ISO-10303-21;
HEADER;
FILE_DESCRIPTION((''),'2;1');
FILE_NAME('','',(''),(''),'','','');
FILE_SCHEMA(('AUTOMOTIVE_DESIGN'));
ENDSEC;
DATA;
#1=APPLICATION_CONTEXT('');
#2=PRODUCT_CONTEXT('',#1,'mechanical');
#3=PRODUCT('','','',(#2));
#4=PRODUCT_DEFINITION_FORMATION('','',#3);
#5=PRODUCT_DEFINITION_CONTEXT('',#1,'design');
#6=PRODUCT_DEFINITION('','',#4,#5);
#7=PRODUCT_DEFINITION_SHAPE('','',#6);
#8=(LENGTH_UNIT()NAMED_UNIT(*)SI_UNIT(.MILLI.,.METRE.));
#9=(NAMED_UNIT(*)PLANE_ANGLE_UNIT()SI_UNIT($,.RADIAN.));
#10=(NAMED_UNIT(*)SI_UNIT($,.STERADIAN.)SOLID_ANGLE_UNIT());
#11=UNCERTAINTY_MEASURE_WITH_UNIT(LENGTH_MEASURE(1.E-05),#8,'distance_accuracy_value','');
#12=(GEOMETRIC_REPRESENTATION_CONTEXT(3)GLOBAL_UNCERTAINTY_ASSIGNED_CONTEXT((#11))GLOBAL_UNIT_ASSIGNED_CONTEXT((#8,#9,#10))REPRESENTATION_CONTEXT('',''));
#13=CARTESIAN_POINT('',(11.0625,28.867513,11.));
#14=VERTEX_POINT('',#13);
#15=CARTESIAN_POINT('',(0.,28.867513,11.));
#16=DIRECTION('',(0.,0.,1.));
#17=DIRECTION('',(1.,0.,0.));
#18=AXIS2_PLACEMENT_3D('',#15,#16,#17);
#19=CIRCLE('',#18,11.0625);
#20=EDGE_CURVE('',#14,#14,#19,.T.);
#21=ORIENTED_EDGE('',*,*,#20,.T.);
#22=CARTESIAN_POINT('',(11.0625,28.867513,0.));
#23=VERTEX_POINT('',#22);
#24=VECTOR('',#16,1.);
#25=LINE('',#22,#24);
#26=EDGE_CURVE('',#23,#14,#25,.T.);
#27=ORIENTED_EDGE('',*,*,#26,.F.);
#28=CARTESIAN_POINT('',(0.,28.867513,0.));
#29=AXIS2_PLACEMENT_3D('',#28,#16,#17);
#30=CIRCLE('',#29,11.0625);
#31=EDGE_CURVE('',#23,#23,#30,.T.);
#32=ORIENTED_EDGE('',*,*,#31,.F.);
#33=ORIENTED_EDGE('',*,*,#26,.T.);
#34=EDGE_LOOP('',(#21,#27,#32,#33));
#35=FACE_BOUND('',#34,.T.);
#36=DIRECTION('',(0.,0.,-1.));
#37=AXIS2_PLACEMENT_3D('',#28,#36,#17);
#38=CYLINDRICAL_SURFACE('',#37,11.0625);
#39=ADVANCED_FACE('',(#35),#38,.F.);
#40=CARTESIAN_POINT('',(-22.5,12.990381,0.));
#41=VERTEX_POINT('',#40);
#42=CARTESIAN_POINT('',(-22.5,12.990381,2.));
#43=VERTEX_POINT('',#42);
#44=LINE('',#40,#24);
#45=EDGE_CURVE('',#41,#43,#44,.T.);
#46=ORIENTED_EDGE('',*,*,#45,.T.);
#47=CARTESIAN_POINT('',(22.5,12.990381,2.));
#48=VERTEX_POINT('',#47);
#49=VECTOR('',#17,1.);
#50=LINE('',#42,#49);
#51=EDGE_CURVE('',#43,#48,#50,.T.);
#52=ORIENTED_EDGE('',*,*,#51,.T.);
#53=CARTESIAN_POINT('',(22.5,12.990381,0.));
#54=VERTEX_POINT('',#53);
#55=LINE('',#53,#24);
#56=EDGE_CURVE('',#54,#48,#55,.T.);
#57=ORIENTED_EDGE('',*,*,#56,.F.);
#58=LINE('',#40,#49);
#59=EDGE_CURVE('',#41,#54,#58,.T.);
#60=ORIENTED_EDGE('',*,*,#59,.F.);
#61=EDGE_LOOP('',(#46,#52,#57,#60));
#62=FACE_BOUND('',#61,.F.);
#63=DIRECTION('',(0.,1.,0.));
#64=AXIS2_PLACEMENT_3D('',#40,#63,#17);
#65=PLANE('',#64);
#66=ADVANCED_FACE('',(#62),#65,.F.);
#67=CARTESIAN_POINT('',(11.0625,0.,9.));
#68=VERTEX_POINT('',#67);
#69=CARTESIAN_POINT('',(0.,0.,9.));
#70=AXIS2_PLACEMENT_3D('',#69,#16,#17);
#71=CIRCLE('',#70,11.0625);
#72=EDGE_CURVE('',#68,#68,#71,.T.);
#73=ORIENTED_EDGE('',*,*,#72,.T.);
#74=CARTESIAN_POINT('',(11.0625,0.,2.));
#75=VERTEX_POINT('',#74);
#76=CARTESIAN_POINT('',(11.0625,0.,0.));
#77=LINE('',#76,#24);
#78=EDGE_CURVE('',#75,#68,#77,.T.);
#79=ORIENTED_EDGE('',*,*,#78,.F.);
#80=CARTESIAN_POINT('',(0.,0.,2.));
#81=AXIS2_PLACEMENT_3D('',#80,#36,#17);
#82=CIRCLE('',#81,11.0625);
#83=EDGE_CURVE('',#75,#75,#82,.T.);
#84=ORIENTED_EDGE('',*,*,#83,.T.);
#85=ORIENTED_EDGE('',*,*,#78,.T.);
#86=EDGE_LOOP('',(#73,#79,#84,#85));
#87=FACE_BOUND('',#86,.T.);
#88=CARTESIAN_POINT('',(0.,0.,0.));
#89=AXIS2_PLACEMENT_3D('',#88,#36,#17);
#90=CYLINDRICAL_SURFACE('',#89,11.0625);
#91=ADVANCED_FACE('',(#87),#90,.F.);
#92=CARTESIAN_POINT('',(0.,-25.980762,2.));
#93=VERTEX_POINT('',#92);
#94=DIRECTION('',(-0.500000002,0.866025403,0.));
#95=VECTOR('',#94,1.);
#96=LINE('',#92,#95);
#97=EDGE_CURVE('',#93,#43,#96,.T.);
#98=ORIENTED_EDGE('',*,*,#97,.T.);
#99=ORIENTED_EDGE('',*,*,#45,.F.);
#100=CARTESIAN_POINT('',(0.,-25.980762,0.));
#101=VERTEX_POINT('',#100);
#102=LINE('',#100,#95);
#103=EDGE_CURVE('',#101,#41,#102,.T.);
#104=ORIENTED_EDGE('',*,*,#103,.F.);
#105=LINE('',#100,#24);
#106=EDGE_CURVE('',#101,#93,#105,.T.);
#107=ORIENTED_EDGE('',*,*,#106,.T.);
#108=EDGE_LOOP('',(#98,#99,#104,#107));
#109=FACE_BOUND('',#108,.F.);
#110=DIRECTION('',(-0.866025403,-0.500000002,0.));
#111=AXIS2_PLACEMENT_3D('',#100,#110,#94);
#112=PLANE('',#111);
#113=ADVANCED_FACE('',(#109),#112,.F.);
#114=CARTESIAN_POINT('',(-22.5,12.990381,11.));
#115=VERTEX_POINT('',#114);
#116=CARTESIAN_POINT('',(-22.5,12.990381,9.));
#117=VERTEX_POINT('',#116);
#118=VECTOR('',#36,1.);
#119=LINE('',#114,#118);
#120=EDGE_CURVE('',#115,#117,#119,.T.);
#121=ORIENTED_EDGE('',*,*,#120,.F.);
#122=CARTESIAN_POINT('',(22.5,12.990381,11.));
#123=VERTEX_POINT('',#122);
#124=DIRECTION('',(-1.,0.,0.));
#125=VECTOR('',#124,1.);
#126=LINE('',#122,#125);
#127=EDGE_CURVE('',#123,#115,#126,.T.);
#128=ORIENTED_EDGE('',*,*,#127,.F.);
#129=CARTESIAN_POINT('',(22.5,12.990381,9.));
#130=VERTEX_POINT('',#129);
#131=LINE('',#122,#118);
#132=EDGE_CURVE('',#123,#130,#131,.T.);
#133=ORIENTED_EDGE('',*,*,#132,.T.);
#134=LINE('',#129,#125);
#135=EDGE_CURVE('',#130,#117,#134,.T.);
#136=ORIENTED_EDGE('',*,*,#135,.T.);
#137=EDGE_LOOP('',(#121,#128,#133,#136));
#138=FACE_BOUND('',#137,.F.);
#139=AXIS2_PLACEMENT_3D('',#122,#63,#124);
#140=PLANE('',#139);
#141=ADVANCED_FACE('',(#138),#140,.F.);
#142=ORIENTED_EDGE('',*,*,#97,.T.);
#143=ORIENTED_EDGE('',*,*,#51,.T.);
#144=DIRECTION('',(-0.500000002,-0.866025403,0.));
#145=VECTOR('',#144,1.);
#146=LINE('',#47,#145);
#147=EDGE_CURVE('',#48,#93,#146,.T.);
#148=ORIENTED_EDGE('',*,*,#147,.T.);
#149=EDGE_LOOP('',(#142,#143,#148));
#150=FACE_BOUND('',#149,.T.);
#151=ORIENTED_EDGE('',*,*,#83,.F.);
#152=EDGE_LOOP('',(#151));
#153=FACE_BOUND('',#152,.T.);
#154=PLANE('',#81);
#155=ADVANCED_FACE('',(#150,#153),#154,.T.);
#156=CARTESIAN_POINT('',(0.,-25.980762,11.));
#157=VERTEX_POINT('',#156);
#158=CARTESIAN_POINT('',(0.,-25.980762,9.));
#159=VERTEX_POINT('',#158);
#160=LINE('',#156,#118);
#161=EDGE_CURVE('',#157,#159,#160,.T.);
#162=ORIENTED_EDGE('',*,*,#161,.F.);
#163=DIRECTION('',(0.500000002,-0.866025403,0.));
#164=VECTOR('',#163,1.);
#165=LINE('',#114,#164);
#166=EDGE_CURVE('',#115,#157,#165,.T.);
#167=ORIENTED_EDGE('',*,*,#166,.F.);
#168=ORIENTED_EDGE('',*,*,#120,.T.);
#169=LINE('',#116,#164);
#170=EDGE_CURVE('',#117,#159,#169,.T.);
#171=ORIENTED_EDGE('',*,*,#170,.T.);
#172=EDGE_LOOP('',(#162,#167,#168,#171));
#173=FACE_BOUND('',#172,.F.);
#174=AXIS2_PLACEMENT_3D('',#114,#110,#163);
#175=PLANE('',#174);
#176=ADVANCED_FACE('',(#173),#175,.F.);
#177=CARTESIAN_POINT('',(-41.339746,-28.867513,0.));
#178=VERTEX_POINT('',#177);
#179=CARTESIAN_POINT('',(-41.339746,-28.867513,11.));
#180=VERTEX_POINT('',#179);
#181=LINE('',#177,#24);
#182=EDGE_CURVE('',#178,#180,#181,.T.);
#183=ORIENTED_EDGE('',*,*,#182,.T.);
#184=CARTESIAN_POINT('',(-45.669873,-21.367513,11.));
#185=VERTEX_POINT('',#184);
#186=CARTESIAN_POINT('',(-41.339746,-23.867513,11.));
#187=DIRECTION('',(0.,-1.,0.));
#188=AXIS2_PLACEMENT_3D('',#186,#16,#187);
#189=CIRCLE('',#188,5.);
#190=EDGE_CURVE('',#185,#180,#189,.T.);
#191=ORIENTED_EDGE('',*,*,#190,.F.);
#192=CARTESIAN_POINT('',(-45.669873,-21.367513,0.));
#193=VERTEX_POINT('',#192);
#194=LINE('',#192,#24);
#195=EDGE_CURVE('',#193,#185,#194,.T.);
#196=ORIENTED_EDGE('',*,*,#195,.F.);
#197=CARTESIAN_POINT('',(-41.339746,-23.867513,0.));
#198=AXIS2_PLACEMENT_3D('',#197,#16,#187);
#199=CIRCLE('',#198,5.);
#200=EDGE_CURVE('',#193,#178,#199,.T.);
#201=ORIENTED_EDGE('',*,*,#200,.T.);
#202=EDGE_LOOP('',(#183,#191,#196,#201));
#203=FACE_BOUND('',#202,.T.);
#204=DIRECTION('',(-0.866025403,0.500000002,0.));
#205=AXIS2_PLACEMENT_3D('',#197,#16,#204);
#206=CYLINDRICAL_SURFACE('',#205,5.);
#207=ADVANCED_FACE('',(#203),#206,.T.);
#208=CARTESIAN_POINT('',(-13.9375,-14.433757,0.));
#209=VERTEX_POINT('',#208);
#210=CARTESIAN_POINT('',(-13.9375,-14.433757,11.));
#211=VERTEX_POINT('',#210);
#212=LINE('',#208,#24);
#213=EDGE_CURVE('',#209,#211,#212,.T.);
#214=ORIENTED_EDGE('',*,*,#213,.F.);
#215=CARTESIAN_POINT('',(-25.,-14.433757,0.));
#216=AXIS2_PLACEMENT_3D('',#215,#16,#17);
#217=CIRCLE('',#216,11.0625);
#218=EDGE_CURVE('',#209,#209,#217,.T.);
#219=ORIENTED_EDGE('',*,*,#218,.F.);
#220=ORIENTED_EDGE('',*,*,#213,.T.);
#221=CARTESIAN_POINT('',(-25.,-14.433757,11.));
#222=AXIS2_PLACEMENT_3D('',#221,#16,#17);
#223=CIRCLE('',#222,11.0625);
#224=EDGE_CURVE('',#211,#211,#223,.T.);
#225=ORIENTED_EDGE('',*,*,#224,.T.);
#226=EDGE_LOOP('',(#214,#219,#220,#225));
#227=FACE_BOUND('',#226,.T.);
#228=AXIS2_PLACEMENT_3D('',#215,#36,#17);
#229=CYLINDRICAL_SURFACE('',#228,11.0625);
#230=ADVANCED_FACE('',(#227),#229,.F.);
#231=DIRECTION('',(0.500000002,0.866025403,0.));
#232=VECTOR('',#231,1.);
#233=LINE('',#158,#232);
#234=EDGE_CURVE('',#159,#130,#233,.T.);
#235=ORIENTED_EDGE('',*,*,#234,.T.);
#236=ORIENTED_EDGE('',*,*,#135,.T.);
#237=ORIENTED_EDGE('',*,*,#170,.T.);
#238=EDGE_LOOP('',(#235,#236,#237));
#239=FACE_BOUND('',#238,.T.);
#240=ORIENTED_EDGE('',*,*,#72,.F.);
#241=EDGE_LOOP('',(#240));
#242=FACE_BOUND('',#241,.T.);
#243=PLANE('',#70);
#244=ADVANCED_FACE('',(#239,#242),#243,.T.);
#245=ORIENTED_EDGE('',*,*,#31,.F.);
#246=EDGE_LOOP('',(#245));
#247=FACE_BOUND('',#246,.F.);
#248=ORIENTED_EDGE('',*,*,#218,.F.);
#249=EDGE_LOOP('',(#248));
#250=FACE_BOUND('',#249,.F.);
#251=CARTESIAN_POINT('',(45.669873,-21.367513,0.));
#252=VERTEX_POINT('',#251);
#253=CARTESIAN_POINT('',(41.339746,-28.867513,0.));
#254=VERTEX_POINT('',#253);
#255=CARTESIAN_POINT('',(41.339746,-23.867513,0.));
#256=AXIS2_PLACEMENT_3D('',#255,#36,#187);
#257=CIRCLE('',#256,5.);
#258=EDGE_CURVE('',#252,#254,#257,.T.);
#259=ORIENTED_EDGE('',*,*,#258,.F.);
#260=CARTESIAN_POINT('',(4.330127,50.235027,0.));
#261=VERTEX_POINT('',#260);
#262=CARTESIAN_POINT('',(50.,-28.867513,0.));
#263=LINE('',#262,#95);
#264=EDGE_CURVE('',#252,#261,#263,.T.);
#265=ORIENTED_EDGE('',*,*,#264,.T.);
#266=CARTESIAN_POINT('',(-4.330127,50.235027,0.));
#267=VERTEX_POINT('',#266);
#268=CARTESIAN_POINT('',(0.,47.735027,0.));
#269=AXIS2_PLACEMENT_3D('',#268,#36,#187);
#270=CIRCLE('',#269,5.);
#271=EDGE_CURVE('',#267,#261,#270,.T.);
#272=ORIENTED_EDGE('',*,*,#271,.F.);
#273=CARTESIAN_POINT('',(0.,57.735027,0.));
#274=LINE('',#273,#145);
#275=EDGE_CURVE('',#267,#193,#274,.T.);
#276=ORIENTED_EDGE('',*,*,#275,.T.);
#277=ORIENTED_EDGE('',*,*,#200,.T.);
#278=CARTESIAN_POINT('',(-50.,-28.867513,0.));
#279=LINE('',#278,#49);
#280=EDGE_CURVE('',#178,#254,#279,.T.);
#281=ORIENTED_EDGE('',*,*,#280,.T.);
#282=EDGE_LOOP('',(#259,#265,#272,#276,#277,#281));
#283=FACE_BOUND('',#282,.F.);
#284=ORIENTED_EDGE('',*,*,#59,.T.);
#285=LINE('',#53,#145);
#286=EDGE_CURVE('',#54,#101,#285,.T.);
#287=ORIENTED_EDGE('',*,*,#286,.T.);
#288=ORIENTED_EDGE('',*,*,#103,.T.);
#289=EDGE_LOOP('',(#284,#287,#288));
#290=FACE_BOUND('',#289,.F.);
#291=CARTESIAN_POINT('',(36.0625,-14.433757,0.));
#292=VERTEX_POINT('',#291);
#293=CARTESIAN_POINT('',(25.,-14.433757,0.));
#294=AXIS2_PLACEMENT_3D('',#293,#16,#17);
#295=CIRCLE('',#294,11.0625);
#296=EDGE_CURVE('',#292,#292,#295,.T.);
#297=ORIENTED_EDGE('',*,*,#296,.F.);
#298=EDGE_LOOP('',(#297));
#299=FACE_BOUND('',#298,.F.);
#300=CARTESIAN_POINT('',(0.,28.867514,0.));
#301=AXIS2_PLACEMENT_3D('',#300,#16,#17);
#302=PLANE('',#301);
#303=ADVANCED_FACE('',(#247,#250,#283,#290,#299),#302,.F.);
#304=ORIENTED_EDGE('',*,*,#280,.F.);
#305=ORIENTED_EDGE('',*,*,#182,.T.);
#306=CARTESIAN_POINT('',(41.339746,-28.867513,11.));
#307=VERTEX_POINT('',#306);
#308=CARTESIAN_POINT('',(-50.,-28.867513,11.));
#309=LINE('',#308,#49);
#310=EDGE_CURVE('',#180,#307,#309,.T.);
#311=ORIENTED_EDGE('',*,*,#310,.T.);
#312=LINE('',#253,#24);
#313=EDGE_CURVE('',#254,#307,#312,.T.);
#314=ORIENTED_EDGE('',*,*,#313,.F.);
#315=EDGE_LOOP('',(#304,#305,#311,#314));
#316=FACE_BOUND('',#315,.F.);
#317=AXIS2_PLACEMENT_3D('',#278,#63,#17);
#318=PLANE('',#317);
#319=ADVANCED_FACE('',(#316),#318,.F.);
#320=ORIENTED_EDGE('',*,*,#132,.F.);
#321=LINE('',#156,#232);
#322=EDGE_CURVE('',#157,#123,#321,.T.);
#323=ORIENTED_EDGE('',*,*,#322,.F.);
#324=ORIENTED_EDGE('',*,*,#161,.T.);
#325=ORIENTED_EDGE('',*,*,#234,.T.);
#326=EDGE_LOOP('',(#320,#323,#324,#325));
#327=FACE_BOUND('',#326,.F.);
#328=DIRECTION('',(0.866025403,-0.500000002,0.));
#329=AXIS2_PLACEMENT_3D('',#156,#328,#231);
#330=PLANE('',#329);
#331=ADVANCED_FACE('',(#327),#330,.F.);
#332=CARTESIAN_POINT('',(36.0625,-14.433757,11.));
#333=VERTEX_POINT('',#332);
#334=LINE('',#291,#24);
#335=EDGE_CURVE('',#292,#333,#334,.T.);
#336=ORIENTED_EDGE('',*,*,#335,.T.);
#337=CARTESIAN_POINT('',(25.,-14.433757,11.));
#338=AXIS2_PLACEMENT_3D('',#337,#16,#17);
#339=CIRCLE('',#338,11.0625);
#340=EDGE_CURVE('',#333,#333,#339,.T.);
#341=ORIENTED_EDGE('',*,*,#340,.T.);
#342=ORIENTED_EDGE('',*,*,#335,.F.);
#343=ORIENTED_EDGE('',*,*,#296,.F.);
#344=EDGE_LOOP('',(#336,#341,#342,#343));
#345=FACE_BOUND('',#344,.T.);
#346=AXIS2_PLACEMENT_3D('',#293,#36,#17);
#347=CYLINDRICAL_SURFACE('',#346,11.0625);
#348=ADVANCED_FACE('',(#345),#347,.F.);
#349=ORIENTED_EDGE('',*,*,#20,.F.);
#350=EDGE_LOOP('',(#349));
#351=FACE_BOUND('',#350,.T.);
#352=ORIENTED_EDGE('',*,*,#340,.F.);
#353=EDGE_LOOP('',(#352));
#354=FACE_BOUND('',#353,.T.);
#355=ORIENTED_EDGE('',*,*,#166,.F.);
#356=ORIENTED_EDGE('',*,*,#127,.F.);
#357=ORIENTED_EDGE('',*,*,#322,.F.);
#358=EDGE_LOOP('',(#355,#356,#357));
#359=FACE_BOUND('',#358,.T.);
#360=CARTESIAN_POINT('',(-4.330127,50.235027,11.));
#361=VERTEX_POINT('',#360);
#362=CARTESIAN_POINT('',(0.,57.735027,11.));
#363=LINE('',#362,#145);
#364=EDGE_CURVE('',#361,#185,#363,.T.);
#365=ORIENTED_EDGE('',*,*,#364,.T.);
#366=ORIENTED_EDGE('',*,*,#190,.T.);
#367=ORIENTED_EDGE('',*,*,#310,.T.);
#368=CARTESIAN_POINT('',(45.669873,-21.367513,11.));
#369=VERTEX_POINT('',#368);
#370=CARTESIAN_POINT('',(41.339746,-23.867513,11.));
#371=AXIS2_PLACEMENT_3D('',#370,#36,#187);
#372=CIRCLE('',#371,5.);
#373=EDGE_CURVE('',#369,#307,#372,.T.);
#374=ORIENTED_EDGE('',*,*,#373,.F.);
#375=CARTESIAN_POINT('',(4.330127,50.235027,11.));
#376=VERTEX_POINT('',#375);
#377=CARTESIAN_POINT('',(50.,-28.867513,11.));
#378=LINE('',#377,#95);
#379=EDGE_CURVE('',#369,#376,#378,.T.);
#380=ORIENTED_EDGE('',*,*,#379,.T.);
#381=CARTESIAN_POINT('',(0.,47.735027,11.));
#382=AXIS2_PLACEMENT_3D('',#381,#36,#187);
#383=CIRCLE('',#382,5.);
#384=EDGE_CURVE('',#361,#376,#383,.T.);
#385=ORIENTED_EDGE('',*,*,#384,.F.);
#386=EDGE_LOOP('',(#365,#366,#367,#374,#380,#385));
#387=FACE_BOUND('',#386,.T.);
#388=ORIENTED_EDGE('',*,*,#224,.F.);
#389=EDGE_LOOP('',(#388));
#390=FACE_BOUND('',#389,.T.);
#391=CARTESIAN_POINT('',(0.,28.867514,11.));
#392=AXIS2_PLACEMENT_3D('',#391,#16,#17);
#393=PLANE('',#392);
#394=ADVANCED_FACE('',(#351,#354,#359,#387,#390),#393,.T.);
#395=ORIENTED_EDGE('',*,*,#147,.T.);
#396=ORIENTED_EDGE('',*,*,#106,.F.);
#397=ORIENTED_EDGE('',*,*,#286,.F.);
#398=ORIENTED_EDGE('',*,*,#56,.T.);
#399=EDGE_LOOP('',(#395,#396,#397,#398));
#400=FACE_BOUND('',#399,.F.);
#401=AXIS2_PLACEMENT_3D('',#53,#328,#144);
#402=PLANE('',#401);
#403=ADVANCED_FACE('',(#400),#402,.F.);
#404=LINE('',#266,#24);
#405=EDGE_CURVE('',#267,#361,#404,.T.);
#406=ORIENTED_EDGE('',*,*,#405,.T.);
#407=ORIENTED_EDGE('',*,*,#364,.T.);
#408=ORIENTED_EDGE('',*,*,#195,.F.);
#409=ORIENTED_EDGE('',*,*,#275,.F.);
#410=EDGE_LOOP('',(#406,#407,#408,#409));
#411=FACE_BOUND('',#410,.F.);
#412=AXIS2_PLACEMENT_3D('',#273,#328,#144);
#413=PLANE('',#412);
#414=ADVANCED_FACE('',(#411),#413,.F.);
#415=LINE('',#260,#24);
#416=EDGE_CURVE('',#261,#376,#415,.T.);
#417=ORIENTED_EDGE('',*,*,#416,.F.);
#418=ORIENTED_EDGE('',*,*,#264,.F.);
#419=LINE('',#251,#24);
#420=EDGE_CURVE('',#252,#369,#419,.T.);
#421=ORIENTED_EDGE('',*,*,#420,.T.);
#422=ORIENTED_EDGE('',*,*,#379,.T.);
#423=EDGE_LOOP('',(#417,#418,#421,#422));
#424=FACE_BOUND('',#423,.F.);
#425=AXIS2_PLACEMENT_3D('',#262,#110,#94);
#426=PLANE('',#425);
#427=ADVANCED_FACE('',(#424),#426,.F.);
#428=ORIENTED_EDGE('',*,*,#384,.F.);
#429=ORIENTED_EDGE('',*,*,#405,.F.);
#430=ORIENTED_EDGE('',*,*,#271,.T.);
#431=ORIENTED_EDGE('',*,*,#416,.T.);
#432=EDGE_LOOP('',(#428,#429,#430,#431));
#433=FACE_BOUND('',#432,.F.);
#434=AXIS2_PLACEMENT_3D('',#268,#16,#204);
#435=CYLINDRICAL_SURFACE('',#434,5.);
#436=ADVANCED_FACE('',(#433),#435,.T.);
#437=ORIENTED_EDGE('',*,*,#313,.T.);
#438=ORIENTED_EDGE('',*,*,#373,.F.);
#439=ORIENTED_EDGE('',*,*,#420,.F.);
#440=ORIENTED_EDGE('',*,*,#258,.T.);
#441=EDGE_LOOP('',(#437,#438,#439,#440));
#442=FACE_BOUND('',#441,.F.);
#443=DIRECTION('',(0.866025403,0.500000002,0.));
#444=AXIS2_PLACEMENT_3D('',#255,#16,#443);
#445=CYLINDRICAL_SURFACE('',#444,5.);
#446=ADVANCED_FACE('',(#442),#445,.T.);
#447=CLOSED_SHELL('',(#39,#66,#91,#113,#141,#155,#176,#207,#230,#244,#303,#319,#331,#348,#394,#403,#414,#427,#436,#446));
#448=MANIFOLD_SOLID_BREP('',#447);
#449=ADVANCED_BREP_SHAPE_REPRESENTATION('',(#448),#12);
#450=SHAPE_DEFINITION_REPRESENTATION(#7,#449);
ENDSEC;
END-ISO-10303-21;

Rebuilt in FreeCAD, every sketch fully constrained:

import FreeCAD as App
import Part
import Sketcher
from FreeCAD import Vector
Q = App.Units.Quantity


def edges_at(feature, points):
    """Names of the edges that pass closest to the given points."""
    edges = feature.Shape.Edges
    near = lambda p: min(range(len(edges)), key=lambda i: edges[i].distToShape(Part.Vertex(*p))[0])
    return sorted({f"Edge{near(p) + 1}" for p in points})

doc = App.newDocument("Part")
body = doc.addObject("PartDesign::Body", "Body")

# Sketch on XY plane
sketch1 = doc.addObject("Sketcher::SketchObject", "Sketch")
body.addObject(sketch1)
sketch1.AttachmentSupport = (doc.XY_Plane, [""])
sketch1.MapMode = "FlatFace"
sketch1.addGeometry(Part.LineSegment(Vector(0, 58, 0), Vector(-50, -29, 0)), False)
sketch1.addGeometry(Part.LineSegment(Vector(-50, -29, 0), Vector(50, -29, 0)), False)
sketch1.addGeometry(Part.LineSegment(Vector(50, -29, 0), Vector(0, 58, 0)), False)
sketch1.addGeometry(Part.Circle(Vector(-25, -14, 0), Vector(0, 0, 1), 11), False)
sketch1.addGeometry(Part.Circle(Vector(25, -14, 0), Vector(0, 0, 1), 11), False)
sketch1.addGeometry(Part.Circle(Vector(0, 0, 0), Vector(0, 0, 1), 11), False)
sketch1.addGeometry(Part.Circle(Vector(0, 29, 0), Vector(0, 0, 1), 11), False)
sketch1.addConstraint(Sketcher.Constraint("Coincident", 0, 2, 1, 1))
sketch1.addConstraint(Sketcher.Constraint("Coincident", 1, 2, 2, 1))
sketch1.addConstraint(Sketcher.Constraint("Coincident", 2, 2, 0, 1))
sketch1.addConstraint(Sketcher.Constraint("Horizontal", 1))
sketch1.addConstraint(Sketcher.Constraint("Coincident", 5, 3, -1, 1))
sketch1.addConstraint(Sketcher.Constraint("Equal", 3, 4))
sketch1.addConstraint(Sketcher.Constraint("Equal", 4, 5))
sketch1.addConstraint(Sketcher.Constraint("Equal", 5, 6))
sketch1.addConstraint(Sketcher.Constraint("Symmetric", 3, 3, 4, 3, -2))
sketch1.addConstraint(Sketcher.Constraint("PointOnObject", 6, 3, -2))
sketch1.addConstraint(Sketcher.Constraint("PointOnObject", 2, 2, -2))
sketch1.addConstraint(Sketcher.Constraint("Equal", 0, 2))
sketch1.addConstraint(Sketcher.Constraint("DistanceX", 1, 1, 1, 2, Q("100 mm")))
sketch1.addConstraint(Sketcher.Constraint("Angle", 0, Q("-120 deg")))
sketch1.addConstraint(Sketcher.Constraint("Diameter", 3, Q("22.125 mm")))
sketch1.addConstraint(Sketcher.Constraint("DistanceX", 3, 3, -1, 1, Q("25 mm")))
sketch1.addConstraint(Sketcher.Constraint("DistanceY", 3, 3, 6, 3, Q("43.30127 mm")))
sketch1.addConstraint(Sketcher.Constraint("DistanceY", 3, 3, -1, 1, Q("14.433757 mm")))
sketch1.addConstraint(Sketcher.Constraint("DistanceY", 0, 2, -1, 1, Q("28.867513 mm")))
pad1 = doc.addObject("PartDesign::Pad", "Pad")
body.addObject(pad1)
pad1.Profile = sketch1
pad1.Length = 11
doc.recompute()

fillet = doc.addObject("PartDesign::Fillet", "Fillet")
body.addObject(fillet)
fillet.Base = (pad1, edges_at(pad1, [(50, -28.868, 5.5), (0, 57.735, 5.5), (-50, -28.868, 5.5)]))
fillet.Radius = 5

# Sketch on XY plane
sketch2 = doc.addObject("Sketcher::SketchObject", "Sketch001")
body.addObject(sketch2)
sketch2.AttachmentSupport = (doc.XY_Plane, [""])
sketch2.MapMode = "FlatFace"
sketch2.AttachmentOffset = App.Placement(Vector(0, 0, 11), App.Rotation())
sketch2.addGeometry(Part.LineSegment(Vector(-22, 13, 0), Vector(0, -26, 0)), False)
sketch2.addGeometry(Part.LineSegment(Vector(0, -26, 0), Vector(22, 13, 0)), False)
sketch2.addGeometry(Part.LineSegment(Vector(22, 13, 0), Vector(-22, 13, 0)), False)
sketch2.addGeometry(Part.Circle(Vector(0, 0, 0), Vector(0, 0, 1), 11), False)
sketch2.addConstraint(Sketcher.Constraint("Coincident", 0, 2, 1, 1))
sketch2.addConstraint(Sketcher.Constraint("Coincident", 1, 2, 2, 1))
sketch2.addConstraint(Sketcher.Constraint("Coincident", 2, 2, 0, 1))
sketch2.addConstraint(Sketcher.Constraint("Horizontal", 2))
sketch2.addConstraint(Sketcher.Constraint("Coincident", 3, 3, -1, 1))
sketch2.addConstraint(Sketcher.Constraint("PointOnObject", 0, 2, -2))
sketch2.addConstraint(Sketcher.Constraint("Equal", 0, 1))
sketch2.addConstraint(Sketcher.Constraint("DistanceX", 2, 2, 2, 1, Q("45 mm")))
sketch2.addConstraint(Sketcher.Constraint("Angle", 0, Q("-60 deg")))
sketch2.addConstraint(Sketcher.Constraint("Diameter", 3, Q("22.125 mm")))
sketch2.addConstraint(Sketcher.Constraint("DistanceY", 0, 2, -1, 1, Q("25.980762 mm")))
pocket1 = doc.addObject("PartDesign::Pocket", "Pocket")
body.addObject(pocket1)
pocket1.Profile = sketch2
pocket1.Length = 2

# Sketch on XY plane
sketch3 = doc.addObject("Sketcher::SketchObject", "Sketch002")
body.addObject(sketch3)
sketch3.AttachmentSupport = (doc.XY_Plane, [""])
sketch3.MapMode = "FlatFace"
sketch3.addGeometry(Part.LineSegment(Vector(-22, 13, 0), Vector(22, 13, 0)), False)
sketch3.addGeometry(Part.LineSegment(Vector(22, 13, 0), Vector(0, -26, 0)), False)
sketch3.addGeometry(Part.LineSegment(Vector(0, -26, 0), Vector(-22, 13, 0)), False)
sketch3.addConstraint(Sketcher.Constraint("Coincident", 0, 2, 1, 1))
sketch3.addConstraint(Sketcher.Constraint("Coincident", 1, 2, 2, 1))
sketch3.addConstraint(Sketcher.Constraint("Coincident", 2, 2, 0, 1))
sketch3.addConstraint(Sketcher.Constraint("Horizontal", 0))
sketch3.addConstraint(Sketcher.Constraint("PointOnObject", 1, 2, -2))
sketch3.addConstraint(Sketcher.Constraint("Equal", 1, 2))
sketch3.addConstraint(Sketcher.Constraint("DistanceX", 0, 1, 0, 2, Q("45 mm")))
sketch3.addConstraint(Sketcher.Constraint("Angle", 1, Q("-120 deg")))
sketch3.addConstraint(Sketcher.Constraint("DistanceY", -1, 1, 0, 2, Q("12.990381 mm")))
pocket2 = doc.addObject("PartDesign::Pocket", "Pocket001")
body.addObject(pocket2)
pocket2.Profile = sketch3
pocket2.Length = 2
pocket2.Reversed = True

doc.recompute()
